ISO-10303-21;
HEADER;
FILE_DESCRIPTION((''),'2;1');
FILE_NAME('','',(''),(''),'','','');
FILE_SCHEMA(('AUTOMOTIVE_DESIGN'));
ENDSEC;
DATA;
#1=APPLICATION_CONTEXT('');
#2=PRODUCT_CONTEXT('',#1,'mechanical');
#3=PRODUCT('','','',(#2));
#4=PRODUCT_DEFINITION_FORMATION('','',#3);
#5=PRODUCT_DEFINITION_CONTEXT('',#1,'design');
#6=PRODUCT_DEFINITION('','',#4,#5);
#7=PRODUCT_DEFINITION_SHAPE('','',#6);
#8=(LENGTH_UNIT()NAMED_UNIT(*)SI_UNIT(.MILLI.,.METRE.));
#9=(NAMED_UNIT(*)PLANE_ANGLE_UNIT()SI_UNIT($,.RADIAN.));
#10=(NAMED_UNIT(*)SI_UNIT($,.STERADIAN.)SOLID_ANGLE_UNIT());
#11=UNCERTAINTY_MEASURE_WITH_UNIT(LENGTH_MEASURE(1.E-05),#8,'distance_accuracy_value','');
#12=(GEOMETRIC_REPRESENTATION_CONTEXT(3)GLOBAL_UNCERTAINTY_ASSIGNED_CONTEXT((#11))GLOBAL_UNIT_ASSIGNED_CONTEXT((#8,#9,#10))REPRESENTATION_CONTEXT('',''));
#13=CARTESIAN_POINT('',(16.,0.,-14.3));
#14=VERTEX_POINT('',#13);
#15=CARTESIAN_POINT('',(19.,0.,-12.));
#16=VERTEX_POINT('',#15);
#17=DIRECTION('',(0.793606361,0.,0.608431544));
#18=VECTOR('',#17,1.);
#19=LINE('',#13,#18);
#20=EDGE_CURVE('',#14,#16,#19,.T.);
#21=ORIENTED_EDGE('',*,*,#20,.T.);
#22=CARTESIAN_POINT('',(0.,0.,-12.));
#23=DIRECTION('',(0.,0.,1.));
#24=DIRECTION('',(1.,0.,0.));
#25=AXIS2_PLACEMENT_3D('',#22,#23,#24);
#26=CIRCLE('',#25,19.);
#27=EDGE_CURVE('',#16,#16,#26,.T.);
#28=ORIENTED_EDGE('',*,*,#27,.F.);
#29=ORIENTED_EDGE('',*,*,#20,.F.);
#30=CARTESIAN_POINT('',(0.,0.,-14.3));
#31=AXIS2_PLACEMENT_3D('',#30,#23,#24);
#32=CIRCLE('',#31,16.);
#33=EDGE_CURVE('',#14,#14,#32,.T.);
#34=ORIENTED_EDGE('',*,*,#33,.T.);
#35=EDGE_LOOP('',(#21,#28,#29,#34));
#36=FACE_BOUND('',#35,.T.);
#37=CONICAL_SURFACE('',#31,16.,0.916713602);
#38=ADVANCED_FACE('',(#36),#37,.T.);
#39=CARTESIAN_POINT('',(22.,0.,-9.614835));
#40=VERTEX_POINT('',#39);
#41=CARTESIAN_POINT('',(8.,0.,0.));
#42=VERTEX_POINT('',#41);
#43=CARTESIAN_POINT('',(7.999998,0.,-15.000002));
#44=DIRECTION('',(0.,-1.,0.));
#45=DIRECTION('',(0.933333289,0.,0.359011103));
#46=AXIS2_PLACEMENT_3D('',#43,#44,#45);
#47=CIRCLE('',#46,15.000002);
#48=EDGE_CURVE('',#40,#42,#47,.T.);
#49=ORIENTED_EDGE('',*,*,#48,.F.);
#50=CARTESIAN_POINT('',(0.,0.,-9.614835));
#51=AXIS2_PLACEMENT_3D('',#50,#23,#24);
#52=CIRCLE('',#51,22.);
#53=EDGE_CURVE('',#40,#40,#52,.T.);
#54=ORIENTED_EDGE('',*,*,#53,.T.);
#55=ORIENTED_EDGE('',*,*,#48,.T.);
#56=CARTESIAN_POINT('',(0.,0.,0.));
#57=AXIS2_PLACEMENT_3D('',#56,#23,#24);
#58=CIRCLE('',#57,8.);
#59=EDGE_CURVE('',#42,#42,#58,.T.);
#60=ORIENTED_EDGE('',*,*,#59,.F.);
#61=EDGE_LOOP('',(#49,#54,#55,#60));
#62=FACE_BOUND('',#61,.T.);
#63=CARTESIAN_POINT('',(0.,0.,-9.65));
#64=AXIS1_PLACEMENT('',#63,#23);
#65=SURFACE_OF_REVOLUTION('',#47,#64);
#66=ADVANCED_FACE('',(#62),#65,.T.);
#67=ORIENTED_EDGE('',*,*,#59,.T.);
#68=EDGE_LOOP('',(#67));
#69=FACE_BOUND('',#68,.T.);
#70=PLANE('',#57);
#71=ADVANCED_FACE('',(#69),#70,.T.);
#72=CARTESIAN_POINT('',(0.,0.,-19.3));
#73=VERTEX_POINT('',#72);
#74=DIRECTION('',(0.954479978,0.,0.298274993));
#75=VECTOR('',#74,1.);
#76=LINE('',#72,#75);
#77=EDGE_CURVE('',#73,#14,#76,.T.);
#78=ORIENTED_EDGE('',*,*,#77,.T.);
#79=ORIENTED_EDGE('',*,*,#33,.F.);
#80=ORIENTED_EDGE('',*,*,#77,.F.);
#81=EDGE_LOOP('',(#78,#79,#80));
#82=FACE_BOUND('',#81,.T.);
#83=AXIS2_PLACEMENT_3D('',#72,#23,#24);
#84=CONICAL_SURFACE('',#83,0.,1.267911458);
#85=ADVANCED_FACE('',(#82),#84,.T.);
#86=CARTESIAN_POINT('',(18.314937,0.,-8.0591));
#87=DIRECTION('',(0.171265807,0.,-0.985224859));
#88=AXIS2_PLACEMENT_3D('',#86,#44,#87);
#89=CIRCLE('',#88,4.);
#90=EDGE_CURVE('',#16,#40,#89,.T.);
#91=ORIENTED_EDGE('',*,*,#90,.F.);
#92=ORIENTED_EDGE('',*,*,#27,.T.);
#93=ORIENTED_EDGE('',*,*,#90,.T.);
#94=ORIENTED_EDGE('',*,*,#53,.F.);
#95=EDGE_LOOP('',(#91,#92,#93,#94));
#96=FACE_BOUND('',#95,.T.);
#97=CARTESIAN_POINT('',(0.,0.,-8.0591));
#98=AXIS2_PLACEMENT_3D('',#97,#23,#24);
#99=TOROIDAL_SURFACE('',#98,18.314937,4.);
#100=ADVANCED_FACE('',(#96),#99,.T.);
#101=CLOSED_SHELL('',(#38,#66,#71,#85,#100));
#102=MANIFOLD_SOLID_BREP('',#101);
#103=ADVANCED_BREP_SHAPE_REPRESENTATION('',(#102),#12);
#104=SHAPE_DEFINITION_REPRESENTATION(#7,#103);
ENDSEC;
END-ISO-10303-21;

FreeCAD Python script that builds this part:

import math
import FreeCAD as App
import Part
import Sketcher

V = App.Vector

doc = App.newDocument("Part")
body = doc.addObject("PartDesign::Body", "Body")

# Sketch on XZ plane
sketch1 = body.newObject("Sketcher::SketchObject", "Sketch")
sketch1.AttachmentSupport = (doc.getObject("XZ_Plane"), [""])
sketch1.MapMode = "FlatFace"
sketch1.addGeometry(Part.LineSegment(V(0, -19.3, 0), V(16, -14.3, 0)), False)
sketch1.addGeometry(Part.LineSegment(V(16, -14.3, 0), V(19, -12, 0)), False)
sketch1.addGeometry(Part.ArcOfCircle(Part.Circle(V(18.3, -8.1, 0), V(0, 0, 1), 4), math.radians(-80), math.radians(-23)), False)
sketch1.addGeometry(Part.ArcOfCircle(Part.Circle(V(8, -15, 0), V(0, 0, 1), 15), math.radians(21), math.radians(90)), False)
sketch1.addGeometry(Part.LineSegment(V(8, 0, 0), V(0, 0, 0)), False)
sketch1.addGeometry(Part.LineSegment(V(0, 0, 0), V(0, -19.3, 0)), False)
sketch1.addConstraint(Sketcher.Constraint("Coincident", 0, 2, 1, 1))
sketch1.addConstraint(Sketcher.Constraint("Coincident", 1, 2, 2, 1))
sketch1.addConstraint(Sketcher.Constraint("Coincident", 2, 2, 3, 1))
sketch1.addConstraint(Sketcher.Constraint("Tangent", 3, 2, 4, 1))
sketch1.addConstraint(Sketcher.Constraint("Coincident", 4, 2, 5, 1))
sketch1.addConstraint(Sketcher.Constraint("Coincident", 5, 2, 0, 1))
sketch1.addConstraint(Sketcher.Constraint("Horizontal", 4))
sketch1.addConstraint(Sketcher.Constraint("Vertical", 5))
sketch1.addConstraint(Sketcher.Constraint("Coincident", 4, 2, -1, 1))
sketch1.addConstraint(Sketcher.Constraint("Radius", 2, 4.0))
sketch1.addConstraint(Sketcher.Constraint("DistanceX", 4, 2, 4, 1, 8.0))
sketch1.addConstraint(Sketcher.Constraint("DistanceY", 5, 2, 5, 1, 19.3))
sketch1.addConstraint(Sketcher.Constraint("DistanceX", -1, 1, 0, 2, 16.0))
sketch1.addConstraint(Sketcher.Constraint("DistanceX", -1, 1, 1, 2, 19.0))
sketch1.addConstraint(Sketcher.Constraint("DistanceY", 1, 2, -1, 1, 12.0))
sketch1.addConstraint(Sketcher.Constraint("DistanceX", -1, 1, 2, 2, 22.0))
sketch1.addConstraint(Sketcher.Constraint("DistanceY", 5, 2, 0, 2, 5.0))
sketch1.addConstraint(Sketcher.Constraint("Radius", 3, 15.000002))
revolution = body.newObject("PartDesign::Revolution", "Revolution")
revolution.Profile = sketch1
revolution.ReferenceAxis = (sketch1, ["V_Axis"])
revolution.Angle = 360

doc.recompute()
